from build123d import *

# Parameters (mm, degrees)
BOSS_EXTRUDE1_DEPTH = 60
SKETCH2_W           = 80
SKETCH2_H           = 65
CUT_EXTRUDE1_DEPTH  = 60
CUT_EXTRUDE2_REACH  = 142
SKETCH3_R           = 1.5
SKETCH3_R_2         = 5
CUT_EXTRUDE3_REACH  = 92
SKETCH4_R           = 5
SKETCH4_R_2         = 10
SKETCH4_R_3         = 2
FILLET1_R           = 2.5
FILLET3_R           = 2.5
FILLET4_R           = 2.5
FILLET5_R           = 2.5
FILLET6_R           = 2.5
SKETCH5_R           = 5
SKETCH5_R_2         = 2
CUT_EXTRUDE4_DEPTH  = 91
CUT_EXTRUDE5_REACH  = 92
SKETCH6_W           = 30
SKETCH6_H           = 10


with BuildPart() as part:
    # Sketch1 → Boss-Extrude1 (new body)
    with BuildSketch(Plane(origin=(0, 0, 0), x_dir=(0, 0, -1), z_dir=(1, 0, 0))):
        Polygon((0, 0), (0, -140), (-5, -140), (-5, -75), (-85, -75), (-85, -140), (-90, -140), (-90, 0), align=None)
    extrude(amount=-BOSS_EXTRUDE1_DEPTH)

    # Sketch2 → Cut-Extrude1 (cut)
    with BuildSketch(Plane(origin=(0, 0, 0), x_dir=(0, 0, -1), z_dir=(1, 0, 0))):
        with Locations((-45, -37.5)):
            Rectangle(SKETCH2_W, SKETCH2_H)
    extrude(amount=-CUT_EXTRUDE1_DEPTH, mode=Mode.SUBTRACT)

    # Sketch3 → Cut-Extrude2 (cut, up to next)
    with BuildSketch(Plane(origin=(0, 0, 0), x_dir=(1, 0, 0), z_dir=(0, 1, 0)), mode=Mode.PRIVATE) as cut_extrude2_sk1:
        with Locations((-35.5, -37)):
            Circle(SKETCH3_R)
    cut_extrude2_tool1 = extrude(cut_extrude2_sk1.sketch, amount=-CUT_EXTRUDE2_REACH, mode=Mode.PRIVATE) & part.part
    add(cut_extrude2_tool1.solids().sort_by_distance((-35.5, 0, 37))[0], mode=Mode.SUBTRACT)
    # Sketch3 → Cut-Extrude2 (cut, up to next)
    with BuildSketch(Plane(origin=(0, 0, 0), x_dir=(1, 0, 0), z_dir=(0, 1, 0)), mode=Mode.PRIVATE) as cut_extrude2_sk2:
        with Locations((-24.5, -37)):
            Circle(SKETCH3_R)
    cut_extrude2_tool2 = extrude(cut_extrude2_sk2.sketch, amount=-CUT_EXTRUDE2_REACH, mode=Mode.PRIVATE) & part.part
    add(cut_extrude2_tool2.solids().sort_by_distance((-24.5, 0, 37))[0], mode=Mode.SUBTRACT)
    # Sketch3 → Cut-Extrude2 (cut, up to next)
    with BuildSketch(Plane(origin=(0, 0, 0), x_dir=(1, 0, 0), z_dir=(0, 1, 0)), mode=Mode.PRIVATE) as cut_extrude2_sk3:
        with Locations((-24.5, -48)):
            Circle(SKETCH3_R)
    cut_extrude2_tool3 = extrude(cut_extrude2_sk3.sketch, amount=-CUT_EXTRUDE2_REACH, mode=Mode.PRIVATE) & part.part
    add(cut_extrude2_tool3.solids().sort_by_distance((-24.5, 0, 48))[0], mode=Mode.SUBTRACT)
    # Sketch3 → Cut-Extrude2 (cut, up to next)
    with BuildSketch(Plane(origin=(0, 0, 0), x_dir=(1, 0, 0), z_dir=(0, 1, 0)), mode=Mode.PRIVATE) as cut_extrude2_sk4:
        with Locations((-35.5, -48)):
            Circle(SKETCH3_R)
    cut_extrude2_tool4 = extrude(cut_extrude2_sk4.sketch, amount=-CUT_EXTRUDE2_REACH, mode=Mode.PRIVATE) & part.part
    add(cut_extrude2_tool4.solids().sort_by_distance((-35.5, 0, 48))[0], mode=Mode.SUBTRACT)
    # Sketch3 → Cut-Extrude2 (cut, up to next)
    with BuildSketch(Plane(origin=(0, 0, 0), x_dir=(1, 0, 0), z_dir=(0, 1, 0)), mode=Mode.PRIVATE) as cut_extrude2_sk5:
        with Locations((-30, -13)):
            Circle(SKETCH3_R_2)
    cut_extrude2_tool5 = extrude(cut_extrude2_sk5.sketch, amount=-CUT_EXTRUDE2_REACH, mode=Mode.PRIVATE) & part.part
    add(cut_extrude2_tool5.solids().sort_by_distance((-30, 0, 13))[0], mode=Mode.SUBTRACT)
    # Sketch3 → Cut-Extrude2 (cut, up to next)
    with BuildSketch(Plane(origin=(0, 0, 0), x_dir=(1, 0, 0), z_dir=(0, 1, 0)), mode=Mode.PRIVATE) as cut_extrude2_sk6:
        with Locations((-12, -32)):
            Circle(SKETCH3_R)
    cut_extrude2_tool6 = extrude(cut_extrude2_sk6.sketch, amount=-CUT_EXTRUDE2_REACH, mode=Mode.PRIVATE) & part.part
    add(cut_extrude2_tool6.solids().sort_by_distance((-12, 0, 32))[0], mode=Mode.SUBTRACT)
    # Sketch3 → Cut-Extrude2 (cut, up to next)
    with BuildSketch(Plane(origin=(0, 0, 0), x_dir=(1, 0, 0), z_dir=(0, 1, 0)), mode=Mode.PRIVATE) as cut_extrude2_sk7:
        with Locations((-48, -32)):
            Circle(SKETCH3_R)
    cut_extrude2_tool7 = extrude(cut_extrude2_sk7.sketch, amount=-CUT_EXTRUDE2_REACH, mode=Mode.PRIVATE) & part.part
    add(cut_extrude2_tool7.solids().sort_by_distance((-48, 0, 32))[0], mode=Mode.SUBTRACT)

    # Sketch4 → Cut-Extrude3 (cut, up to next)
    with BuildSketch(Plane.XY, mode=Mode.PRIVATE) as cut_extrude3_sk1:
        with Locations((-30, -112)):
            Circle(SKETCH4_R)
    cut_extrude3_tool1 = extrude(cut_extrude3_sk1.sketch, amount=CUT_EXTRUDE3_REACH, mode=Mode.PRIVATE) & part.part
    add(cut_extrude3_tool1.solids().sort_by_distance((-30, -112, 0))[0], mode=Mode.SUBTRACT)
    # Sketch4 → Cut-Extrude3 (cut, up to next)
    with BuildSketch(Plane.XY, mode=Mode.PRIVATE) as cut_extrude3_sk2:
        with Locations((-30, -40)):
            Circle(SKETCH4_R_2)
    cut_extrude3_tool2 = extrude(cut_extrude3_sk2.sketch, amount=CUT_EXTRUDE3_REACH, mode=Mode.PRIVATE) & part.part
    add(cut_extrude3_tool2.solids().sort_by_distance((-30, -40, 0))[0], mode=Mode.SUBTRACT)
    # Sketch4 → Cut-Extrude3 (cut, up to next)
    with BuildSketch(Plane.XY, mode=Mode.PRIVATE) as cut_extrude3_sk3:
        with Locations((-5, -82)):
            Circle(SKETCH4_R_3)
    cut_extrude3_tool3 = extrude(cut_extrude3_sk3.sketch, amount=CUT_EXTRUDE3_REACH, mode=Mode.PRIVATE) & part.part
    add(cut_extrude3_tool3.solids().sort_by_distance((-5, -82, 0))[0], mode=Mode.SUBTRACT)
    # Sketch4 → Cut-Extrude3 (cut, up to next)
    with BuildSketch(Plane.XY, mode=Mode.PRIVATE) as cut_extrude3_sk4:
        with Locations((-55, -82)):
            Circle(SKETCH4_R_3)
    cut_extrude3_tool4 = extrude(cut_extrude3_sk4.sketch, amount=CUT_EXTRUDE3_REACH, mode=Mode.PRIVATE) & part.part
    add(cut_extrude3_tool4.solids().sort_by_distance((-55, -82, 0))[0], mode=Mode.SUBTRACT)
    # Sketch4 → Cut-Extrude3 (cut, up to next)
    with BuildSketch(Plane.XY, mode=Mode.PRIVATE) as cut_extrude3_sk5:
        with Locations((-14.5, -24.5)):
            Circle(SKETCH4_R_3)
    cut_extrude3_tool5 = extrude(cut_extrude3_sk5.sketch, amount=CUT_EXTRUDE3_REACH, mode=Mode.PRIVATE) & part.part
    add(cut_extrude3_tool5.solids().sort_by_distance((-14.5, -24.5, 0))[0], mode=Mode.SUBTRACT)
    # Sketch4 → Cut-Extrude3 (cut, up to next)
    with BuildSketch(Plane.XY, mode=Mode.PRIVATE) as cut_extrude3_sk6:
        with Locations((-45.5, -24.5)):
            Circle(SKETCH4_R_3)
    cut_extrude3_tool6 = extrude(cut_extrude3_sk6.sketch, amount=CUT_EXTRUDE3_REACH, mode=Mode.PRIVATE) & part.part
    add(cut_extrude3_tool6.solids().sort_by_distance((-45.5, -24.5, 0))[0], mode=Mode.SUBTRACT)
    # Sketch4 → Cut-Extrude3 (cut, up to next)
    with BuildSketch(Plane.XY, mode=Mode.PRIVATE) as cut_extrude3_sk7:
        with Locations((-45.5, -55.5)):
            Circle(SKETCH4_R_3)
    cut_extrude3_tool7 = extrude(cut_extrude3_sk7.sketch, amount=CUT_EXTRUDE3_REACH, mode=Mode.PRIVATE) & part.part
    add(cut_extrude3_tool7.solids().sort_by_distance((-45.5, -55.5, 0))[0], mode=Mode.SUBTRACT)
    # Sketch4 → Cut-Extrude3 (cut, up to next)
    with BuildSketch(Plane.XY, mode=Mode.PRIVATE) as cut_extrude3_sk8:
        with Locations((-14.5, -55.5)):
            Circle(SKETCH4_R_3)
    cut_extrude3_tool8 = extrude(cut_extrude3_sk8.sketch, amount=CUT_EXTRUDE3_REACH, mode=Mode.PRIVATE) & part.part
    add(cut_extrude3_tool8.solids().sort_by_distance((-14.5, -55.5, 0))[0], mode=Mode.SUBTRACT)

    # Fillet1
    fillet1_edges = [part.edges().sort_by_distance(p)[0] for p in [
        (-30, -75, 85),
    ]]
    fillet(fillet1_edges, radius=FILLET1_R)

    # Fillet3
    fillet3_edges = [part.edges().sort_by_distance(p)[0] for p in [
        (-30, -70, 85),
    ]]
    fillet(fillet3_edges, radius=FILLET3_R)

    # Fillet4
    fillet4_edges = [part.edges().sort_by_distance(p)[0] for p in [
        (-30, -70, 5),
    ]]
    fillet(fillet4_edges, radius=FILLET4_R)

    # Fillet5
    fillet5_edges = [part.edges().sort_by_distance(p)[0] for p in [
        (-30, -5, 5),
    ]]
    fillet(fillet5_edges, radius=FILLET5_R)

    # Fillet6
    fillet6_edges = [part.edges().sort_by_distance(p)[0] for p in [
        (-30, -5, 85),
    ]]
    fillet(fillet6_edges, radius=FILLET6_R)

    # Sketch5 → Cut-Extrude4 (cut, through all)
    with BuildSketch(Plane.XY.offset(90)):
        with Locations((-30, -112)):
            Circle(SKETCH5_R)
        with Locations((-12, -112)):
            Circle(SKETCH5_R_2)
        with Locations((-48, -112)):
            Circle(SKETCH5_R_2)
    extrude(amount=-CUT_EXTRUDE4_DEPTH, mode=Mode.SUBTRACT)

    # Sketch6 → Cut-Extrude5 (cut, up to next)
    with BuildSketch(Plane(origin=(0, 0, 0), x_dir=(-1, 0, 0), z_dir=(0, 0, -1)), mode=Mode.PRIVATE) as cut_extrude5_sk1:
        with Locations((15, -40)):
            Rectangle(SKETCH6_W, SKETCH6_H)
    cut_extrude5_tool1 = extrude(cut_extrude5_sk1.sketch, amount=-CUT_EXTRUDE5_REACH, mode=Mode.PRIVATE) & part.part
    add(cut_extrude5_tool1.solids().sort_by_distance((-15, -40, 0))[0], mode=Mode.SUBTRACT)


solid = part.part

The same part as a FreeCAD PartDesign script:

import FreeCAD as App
import Part
import Sketcher

V = App.Vector


def edges_at(feature, points):
    """Names of the edges that pass closest to the given points."""
    edges = feature.Shape.Edges
    near = lambda p: min(range(len(edges)), key=lambda i: edges[i].distToShape(Part.Vertex(*p))[0])
    return sorted({f"Edge{near(p) + 1}" for p in points})


def add_polygon(sketch, points):
    """Adds a closed chain of lines whose ends are joined by coincident constraints."""
    first, n = sketch.GeometryCount, len(points)
    for a, b in zip(points, points[1:] + points[:1]):
        sketch.addGeometry(Part.LineSegment(App.Vector(*a, 0), App.Vector(*b, 0)), False)
    for i in range(n):
        sketch.addConstraint(Sketcher.Constraint("Coincident", first + i, 2, first + (i + 1) % n, 1))

doc = App.newDocument("Part")
body = doc.addObject("PartDesign::Body", "Body")

# Sketch on YZ plane
sketch1 = doc.addObject("Sketcher::SketchObject", "Sketch")
body.addObject(sketch1)
sketch1.AttachmentSupport = (doc.YZ_Plane, [""])
sketch1.MapMode = "FlatFace"
add_polygon(sketch1, [(-140, 0), (0, 0), (0, 90), (-140, 90), (-140, 85), (-75, 85), (-75, 5), (-140, 5)])  # lines 0-7
sketch1.addConstraint(Sketcher.Constraint("Horizontal", 0))
sketch1.addConstraint(Sketcher.Constraint("Vertical", 1))
sketch1.addConstraint(Sketcher.Constraint("Horizontal", 2))
sketch1.addConstraint(Sketcher.Constraint("Vertical", 3))
sketch1.addConstraint(Sketcher.Constraint("Horizontal", 4))
sketch1.addConstraint(Sketcher.Constraint("Vertical", 5))
sketch1.addConstraint(Sketcher.Constraint("Horizontal", 6))
sketch1.addConstraint(Sketcher.Constraint("Vertical", 7))
sketch1.addConstraint(Sketcher.Constraint("Coincident", 0, 2, -1, 1))
sketch1.addConstraint(Sketcher.Constraint("Vertical", 3, 2, 6, 2))
sketch1.addConstraint(Sketcher.Constraint("Equal", 3, 7))
sketch1.addConstraint(Sketcher.Constraint("DistanceX", 0, 1, 0, 2, 140.0))
sketch1.addConstraint(Sketcher.Constraint("DistanceX", 4, 1, 4, 2, 65.0))
sketch1.addConstraint(Sketcher.Constraint("DistanceY", 1, 1, 1, 2, 90.0))
sketch1.addConstraint(Sketcher.Constraint("DistanceY", 3, 2, 3, 1, 5.0))
pad1 = doc.addObject("PartDesign::Pad", "Pad")
body.addObject(pad1)
pad1.Profile = sketch1
pad1.Length = 60
pad1.Reversed = True

# Sketch on YZ plane
sketch2 = doc.addObject("Sketcher::SketchObject", "Sketch001")
body.addObject(sketch2)
sketch2.AttachmentSupport = (doc.YZ_Plane, [""])
sketch2.MapMode = "FlatFace"
add_polygon(sketch2, [(-5, 85), (-70, 85), (-70, 5), (-5, 5)])  # lines 0-3
sketch2.addConstraint(Sketcher.Constraint("Horizontal", 0))
sketch2.addConstraint(Sketcher.Constraint("Vertical", 1))
sketch2.addConstraint(Sketcher.Constraint("Horizontal", 2))
sketch2.addConstraint(Sketcher.Constraint("Vertical", 3))
sketch2.addConstraint(Sketcher.Constraint("DistanceX", 0, 2, 0, 1, 65.0))
sketch2.addConstraint(Sketcher.Constraint("DistanceY", 1, 2, 1, 1, 80.0))
sketch2.addConstraint(Sketcher.Constraint("DistanceX", 0, 2, -1, 1, 70.0))
sketch2.addConstraint(Sketcher.Constraint("DistanceY", -1, 1, 0, 2, 85.0))
pocket1 = doc.addObject("PartDesign::Pocket", "Pocket")
body.addObject(pocket1)
pocket1.Profile = sketch2
pocket1.Length = 60

# Sketch on XZ plane
sketch3 = doc.addObject("Sketcher::SketchObject", "Sketch002")
body.addObject(sketch3)
sketch3.AttachmentSupport = (doc.XZ_Plane, [""])
sketch3.MapMode = "FlatFace"
sketch3.addGeometry(Part.Circle(V(-35.5, 37, 0), V(0, 0, 1), 1.5), False)
sketch3.addConstraint(Sketcher.Constraint("Diameter", 0, 3.0))
sketch3.addConstraint(Sketcher.Constraint("DistanceY", -1, 1, 0, 3, 37.0))
sketch3.addConstraint(Sketcher.Constraint("DistanceX", 0, 3, -1, 1, 35.5))
pocket2 = doc.addObject("PartDesign::Pocket", "Pocket001")
body.addObject(pocket2)
pocket2.Profile = sketch3
pocket2.Type = "UpToFirst"
pocket2.Reversed = True

# Sketch on XZ plane
sketch4 = doc.addObject("Sketcher::SketchObject", "Sketch003")
body.addObject(sketch4)
sketch4.AttachmentSupport = (doc.XZ_Plane, [""])
sketch4.MapMode = "FlatFace"
sketch4.addGeometry(Part.Circle(V(-24.5, 37, 0), V(0, 0, 1), 1.5), False)
sketch4.addConstraint(Sketcher.Constraint("Diameter", 0, 3.0))
sketch4.addConstraint(Sketcher.Constraint("DistanceY", -1, 1, 0, 3, 37.0))
sketch4.addConstraint(Sketcher.Constraint("DistanceX", 0, 3, -1, 1, 24.5))
pocket3 = doc.addObject("PartDesign::Pocket", "Pocket002")
body.addObject(pocket3)
pocket3.Profile = sketch4
pocket3.Type = "UpToFirst"
pocket3.Reversed = True

# Sketch on XZ plane
sketch5 = doc.addObject("Sketcher::SketchObject", "Sketch004")
body.addObject(sketch5)
sketch5.AttachmentSupport = (doc.XZ_Plane, [""])
sketch5.MapMode = "FlatFace"
sketch5.addGeometry(Part.Circle(V(-24.5, 48, 0), V(0, 0, 1), 1.5), False)
sketch5.addConstraint(Sketcher.Constraint("Diameter", 0, 3.0))
sketch5.addConstraint(Sketcher.Constraint("DistanceY", -1, 1, 0, 3, 48.0))
sketch5.addConstraint(Sketcher.Constraint("DistanceX", 0, 3, -1, 1, 24.5))
pocket4 = doc.addObject("PartDesign::Pocket", "Pocket003")
body.addObject(pocket4)
pocket4.Profile = sketch5
pocket4.Type = "UpToFirst"
pocket4.Reversed = True

# Sketch on XZ plane
sketch6 = doc.addObject("Sketcher::SketchObject", "Sketch005")
body.addObject(sketch6)
sketch6.AttachmentSupport = (doc.XZ_Plane, [""])
sketch6.MapMode = "FlatFace"
sketch6.addGeometry(Part.Circle(V(-35.5, 48, 0), V(0, 0, 1), 1.5), False)
sketch6.addConstraint(Sketcher.Constraint("Diameter", 0, 3.0))
sketch6.addConstraint(Sketcher.Constraint("DistanceY", -1, 1, 0, 3, 48.0))
sketch6.addConstraint(Sketcher.Constraint("DistanceX", 0, 3, -1, 1, 35.5))
pocket5 = doc.addObject("PartDesign::Pocket", "Pocket004")
body.addObject(pocket5)
pocket5.Profile = sketch6
pocket5.Type = "UpToFirst"
pocket5.Reversed = True

# Sketch on XZ plane
sketch7 = doc.addObject("Sketcher::SketchObject", "Sketch006")
body.addObject(sketch7)
sketch7.AttachmentSupport = (doc.XZ_Plane, [""])
sketch7.MapMode = "FlatFace"
sketch7.addGeometry(Part.Circle(V(-30, 13, 0), V(0, 0, 1), 5), False)
sketch7.addConstraint(Sketcher.Constraint("Diameter", 0, 10.0))
sketch7.addConstraint(Sketcher.Constraint("DistanceX", 0, 3, -1, 1, 30.0))
sketch7.addConstraint(Sketcher.Constraint("DistanceY", -1, 1, 0, 3, 13.0))
pocket6 = doc.addObject("PartDesign::Pocket", "Pocket005")
body.addObject(pocket6)
pocket6.Profile = sketch7
pocket6.Type = "UpToFirst"
pocket6.Reversed = True

# Sketch on XZ plane
sketch8 = doc.addObject("Sketcher::SketchObject", "Sketch007")
body.addObject(sketch8)
sketch8.AttachmentSupport = (doc.XZ_Plane, [""])
sketch8.MapMode = "FlatFace"
sketch8.addGeometry(Part.Circle(V(-12, 32, 0), V(0, 0, 1), 1.5), False)
sketch8.addConstraint(Sketcher.Constraint("Diameter", 0, 3.0))
sketch8.addConstraint(Sketcher.Constraint("DistanceX", 0, 3, -1, 1, 12.0))
sketch8.addConstraint(Sketcher.Constraint("DistanceY", -1, 1, 0, 3, 32.0))
pocket7 = doc.addObject("PartDesign::Pocket", "Pocket006")
body.addObject(pocket7)
pocket7.Profile = sketch8
pocket7.Type = "UpToFirst"
pocket7.Reversed = True

# Sketch on XZ plane
sketch9 = doc.addObject("Sketcher::SketchObject", "Sketch008")
body.addObject(sketch9)
sketch9.AttachmentSupport = (doc.XZ_Plane, [""])
sketch9.MapMode = "FlatFace"
sketch9.addGeometry(Part.Circle(V(-48, 32, 0), V(0, 0, 1), 1.5), False)
sketch9.addConstraint(Sketcher.Constraint("Diameter", 0, 3.0))
sketch9.addConstraint(Sketcher.Constraint("DistanceX", 0, 3, -1, 1, 48.0))
sketch9.addConstraint(Sketcher.Constraint("DistanceY", -1, 1, 0, 3, 32.0))
pocket8 = doc.addObject("PartDesign::Pocket", "Pocket007")
body.addObject(pocket8)
pocket8.Profile = sketch9
pocket8.Type = "UpToFirst"
pocket8.Reversed = True

# Sketch on XY plane
sketch10 = doc.addObject("Sketcher::SketchObject", "Sketch009")
body.addObject(sketch10)
sketch10.AttachmentSupport = (doc.XY_Plane, [""])
sketch10.MapMode = "FlatFace"
sketch10.addGeometry(Part.Circle(V(-30, -112, 0), V(0, 0, 1), 5), False)
sketch10.addConstraint(Sketcher.Constraint("Diameter", 0, 10.0))
sketch10.addConstraint(Sketcher.Constraint("DistanceX", 0, 3, -1, 1, 30.0))
sketch10.addConstraint(Sketcher.Constraint("DistanceY", 0, 3, -1, 1, 112.0))
pocket9 = doc.addObject("PartDesign::Pocket", "Pocket008")
body.addObject(pocket9)
pocket9.Profile = sketch10
pocket9.Type = "UpToFirst"
pocket9.Reversed = True

# Sketch on XY plane
sketch11 = doc.addObject("Sketcher::SketchObject", "Sketch010")
body.addObject(sketch11)
sketch11.AttachmentSupport = (doc.XY_Plane, [""])
sketch11.MapMode = "FlatFace"
sketch11.addGeometry(Part.Circle(V(-30, -40, 0), V(0, 0, 1), 10), False)
sketch11.addConstraint(Sketcher.Constraint("Diameter", 0, 20.0))
sketch11.addConstraint(Sketcher.Constraint("DistanceX", 0, 3, -1, 1, 30.0))
sketch11.addConstraint(Sketcher.Constraint("DistanceY", 0, 3, -1, 1, 40.0))
pocket10 = doc.addObject("PartDesign::Pocket", "Pocket009")
body.addObject(pocket10)
pocket10.Profile = sketch11
pocket10.Type = "UpToFirst"
pocket10.Reversed = True

# Sketch on XY plane
sketch12 = doc.addObject("Sketcher::SketchObject", "Sketch011")
body.addObject(sketch12)
sketch12.AttachmentSupport = (doc.XY_Plane, [""])
sketch12.MapMode = "FlatFace"
sketch12.addGeometry(Part.Circle(V(-5, -82, 0), V(0, 0, 1), 2), False)
sketch12.addConstraint(Sketcher.Constraint("Diameter", 0, 4.0))
sketch12.addConstraint(Sketcher.Constraint("DistanceX", 0, 3, -1, 1, 5.0))
sketch12.addConstraint(Sketcher.Constraint("DistanceY", 0, 3, -1, 1, 82.0))
pocket11 = doc.addObject("PartDesign::Pocket", "Pocket010")
body.addObject(pocket11)
pocket11.Profile = sketch12
pocket11.Type = "UpToFirst"
pocket11.Reversed = True

# Sketch on XY plane
sketch13 = doc.addObject("Sketcher::SketchObject", "Sketch012")
body.addObject(sketch13)
sketch13.AttachmentSupport = (doc.XY_Plane, [""])
sketch13.MapMode = "FlatFace"
sketch13.addGeometry(Part.Circle(V(-55, -82, 0), V(0, 0, 1), 2), False)
sketch13.addConstraint(Sketcher.Constraint("Diameter", 0, 4.0))
sketch13.addConstraint(Sketcher.Constraint("DistanceX", 0, 3, -1, 1, 55.0))
sketch13.addConstraint(Sketcher.Constraint("DistanceY", 0, 3, -1, 1, 82.0))
pocket12 = doc.addObject("PartDesign::Pocket", "Pocket011")
body.addObject(pocket12)
pocket12.Profile = sketch13
pocket12.Type = "UpToFirst"
pocket12.Reversed = True

# Sketch on XY plane
sketch14 = doc.addObject("Sketcher::SketchObject", "Sketch013")
body.addObject(sketch14)
sketch14.AttachmentSupport = (doc.XY_Plane, [""])
sketch14.MapMode = "FlatFace"
sketch14.addGeometry(Part.Circle(V(-14.5, -24.5, 0), V(0, 0, 1), 2), False)
sketch14.addConstraint(Sketcher.Constraint("Diameter", 0, 4.0))
sketch14.addConstraint(Sketcher.Constraint("DistanceX", 0, 3, -1, 1, 14.5))
sketch14.addConstraint(Sketcher.Constraint("DistanceY", 0, 3, -1, 1, 24.5))
pocket13 = doc.addObject("PartDesign::Pocket", "Pocket012")
body.addObject(pocket13)
pocket13.Profile = sketch14
pocket13.Type = "UpToFirst"
pocket13.Reversed = True

# Sketch on XY plane
sketch15 = doc.addObject("Sketcher::SketchObject", "Sketch014")
body.addObject(sketch15)
sketch15.AttachmentSupport = (doc.XY_Plane, [""])
sketch15.MapMode = "FlatFace"
sketch15.addGeometry(Part.Circle(V(-45.5, -24.5, 0), V(0, 0, 1), 2), False)
sketch15.addConstraint(Sketcher.Constraint("Diameter", 0, 4.0))
sketch15.addConstraint(Sketcher.Constraint("DistanceX", 0, 3, -1, 1, 45.5))
sketch15.addConstraint(Sketcher.Constraint("DistanceY", 0, 3, -1, 1, 24.5))
pocket14 = doc.addObject("PartDesign::Pocket", "Pocket013")
body.addObject(pocket14)
pocket14.Profile = sketch15
pocket14.Type = "UpToFirst"
pocket14.Reversed = True

# Sketch on XY plane
sketch16 = doc.addObject("Sketcher::SketchObject", "Sketch015")
body.addObject(sketch16)
sketch16.AttachmentSupport = (doc.XY_Plane, [""])
sketch16.MapMode = "FlatFace"
sketch16.addGeometry(Part.Circle(V(-45.5, -55.5, 0), V(0, 0, 1), 2), False)
sketch16.addConstraint(Sketcher.Constraint("Diameter", 0, 4.0))
sketch16.addConstraint(Sketcher.Constraint("DistanceX", 0, 3, -1, 1, 45.5))
sketch16.addConstraint(Sketcher.Constraint("DistanceY", 0, 3, -1, 1, 55.5))
pocket15 = doc.addObject("PartDesign::Pocket", "Pocket014")
body.addObject(pocket15)
pocket15.Profile = sketch16
pocket15.Type = "UpToFirst"
pocket15.Reversed = True

# Sketch on XY plane
sketch17 = doc.addObject("Sketcher::SketchObject", "Sketch016")
body.addObject(sketch17)
sketch17.AttachmentSupport = (doc.XY_Plane, [""])
sketch17.MapMode = "FlatFace"
sketch17.addGeometry(Part.Circle(V(-14.5, -55.5, 0), V(0, 0, 1), 2), False)
sketch17.addConstraint(Sketcher.Constraint("Diameter", 0, 4.0))
sketch17.addConstraint(Sketcher.Constraint("DistanceX", 0, 3, -1, 1, 14.5))
sketch17.addConstraint(Sketcher.Constraint("DistanceY", 0, 3, -1, 1, 55.5))
pocket16 = doc.addObject("PartDesign::Pocket", "Pocket015")
body.addObject(pocket16)
pocket16.Profile = sketch17
pocket16.Type = "UpToFirst"
pocket16.Reversed = True
doc.recompute()

fillet = doc.addObject("PartDesign::Fillet", "Fillet")
body.addObject(fillet)
fillet.Base = (pocket16, edges_at(pocket16, [(-30, -75, 85)]))
fillet.Radius = 2.5
doc.recompute()

fillet2 = doc.addObject("PartDesign::Fillet", "Fillet001")
body.addObject(fillet2)
fillet2.Base = (fillet, edges_at(fillet, [(-30, -70, 85)]))
fillet2.Radius = 2.5
doc.recompute()

fillet3 = doc.addObject("PartDesign::Fillet", "Fillet002")
body.addObject(fillet3)
fillet3.Base = (fillet2, edges_at(fillet2, [(-30, -70, 5)]))
fillet3.Radius = 2.5
doc.recompute()

fillet4 = doc.addObject("PartDesign::Fillet", "Fillet003")
body.addObject(fillet4)
fillet4.Base = (fillet3, edges_at(fillet3, [(-30, -5, 5)]))
fillet4.Radius = 2.5
doc.recompute()

fillet5 = doc.addObject("PartDesign::Fillet", "Fillet004")
body.addObject(fillet5)
fillet5.Base = (fillet4, edges_at(fillet4, [(-30, -5, 85)]))
fillet5.Radius = 2.5

# Sketch on XY plane
sketch18 = doc.addObject("Sketcher::SketchObject", "Sketch017")
body.addObject(sketch18)
sketch18.AttachmentSupport = (doc.XY_Plane, [""])
sketch18.MapMode = "FlatFace"
sketch18.AttachmentOffset = App.Placement(V(0, 0, 90), App.Rotation())
sketch18.addGeometry(Part.Circle(V(-30, -112, 0), V(0, 0, 1), 5), False)
sketch18.addGeometry(Part.Circle(V(-12, -112, 0), V(0, 0, 1), 2), False)
sketch18.addGeometry(Part.Circle(V(-48, -112, 0), V(0, 0, 1), 2), False)
sketch18.addConstraint(Sketcher.Constraint("Equal", 1, 2))
sketch18.addConstraint(Sketcher.Constraint("Horizontal", 0, 3, 1, 3))
sketch18.addConstraint(Sketcher.Constraint("Horizontal", 1, 3, 2, 3))
sketch18.addConstraint(Sketcher.Constraint("Diameter", 0, 10.0))
sketch18.addConstraint(Sketcher.Constraint("Diameter", 1, 4.0))
sketch18.addConstraint(Sketcher.Constraint("DistanceX", 0, 3, -1, 1, 30.0))
sketch18.addConstraint(Sketcher.Constraint("DistanceY", 0, 3, -1, 1, 112.0))
sketch18.addConstraint(Sketcher.Constraint("DistanceX", 1, 3, -1, 1, 12.0))
sketch18.addConstraint(Sketcher.Constraint("DistanceX", 2, 3, -1, 1, 48.0))
pocket17 = doc.addObject("PartDesign::Pocket", "Pocket016")
body.addObject(pocket17)
pocket17.Profile = sketch18
pocket17.Type = "ThroughAll"

# Sketch on XY plane
sketch19 = doc.addObject("Sketcher::SketchObject", "Sketch018")
body.addObject(sketch19)
sketch19.AttachmentSupport = (doc.XY_Plane, [""])
sketch19.MapMode = "FlatFace"
add_polygon(sketch19, [(0, -35), (0, -45), (-30, -45), (-30, -35)])  # lines 0-3
sketch19.addConstraint(Sketcher.Constraint("Vertical", 0))
sketch19.addConstraint(Sketcher.Constraint("Horizontal", 1))
sketch19.addConstraint(Sketcher.Constraint("Vertical", 2))
sketch19.addConstraint(Sketcher.Constraint("Horizontal", 3))
sketch19.addConstraint(Sketcher.Constraint("PointOnObject", 0, 2, -2))
sketch19.addConstraint(Sketcher.Constraint("DistanceX", 1, 2, 1, 1, 30.0))
sketch19.addConstraint(Sketcher.Constraint("DistanceY", 0, 2, 0, 1, 10.0))
sketch19.addConstraint(Sketcher.Constraint("DistanceY", 0, 2, -1, 1, 45.0))
pocket18 = doc.addObject("PartDesign::Pocket", "Pocket017")
body.addObject(pocket18)
pocket18.Profile = sketch19
pocket18.Type = "UpToFirst"
pocket18.Reversed = True

doc.recompute()
